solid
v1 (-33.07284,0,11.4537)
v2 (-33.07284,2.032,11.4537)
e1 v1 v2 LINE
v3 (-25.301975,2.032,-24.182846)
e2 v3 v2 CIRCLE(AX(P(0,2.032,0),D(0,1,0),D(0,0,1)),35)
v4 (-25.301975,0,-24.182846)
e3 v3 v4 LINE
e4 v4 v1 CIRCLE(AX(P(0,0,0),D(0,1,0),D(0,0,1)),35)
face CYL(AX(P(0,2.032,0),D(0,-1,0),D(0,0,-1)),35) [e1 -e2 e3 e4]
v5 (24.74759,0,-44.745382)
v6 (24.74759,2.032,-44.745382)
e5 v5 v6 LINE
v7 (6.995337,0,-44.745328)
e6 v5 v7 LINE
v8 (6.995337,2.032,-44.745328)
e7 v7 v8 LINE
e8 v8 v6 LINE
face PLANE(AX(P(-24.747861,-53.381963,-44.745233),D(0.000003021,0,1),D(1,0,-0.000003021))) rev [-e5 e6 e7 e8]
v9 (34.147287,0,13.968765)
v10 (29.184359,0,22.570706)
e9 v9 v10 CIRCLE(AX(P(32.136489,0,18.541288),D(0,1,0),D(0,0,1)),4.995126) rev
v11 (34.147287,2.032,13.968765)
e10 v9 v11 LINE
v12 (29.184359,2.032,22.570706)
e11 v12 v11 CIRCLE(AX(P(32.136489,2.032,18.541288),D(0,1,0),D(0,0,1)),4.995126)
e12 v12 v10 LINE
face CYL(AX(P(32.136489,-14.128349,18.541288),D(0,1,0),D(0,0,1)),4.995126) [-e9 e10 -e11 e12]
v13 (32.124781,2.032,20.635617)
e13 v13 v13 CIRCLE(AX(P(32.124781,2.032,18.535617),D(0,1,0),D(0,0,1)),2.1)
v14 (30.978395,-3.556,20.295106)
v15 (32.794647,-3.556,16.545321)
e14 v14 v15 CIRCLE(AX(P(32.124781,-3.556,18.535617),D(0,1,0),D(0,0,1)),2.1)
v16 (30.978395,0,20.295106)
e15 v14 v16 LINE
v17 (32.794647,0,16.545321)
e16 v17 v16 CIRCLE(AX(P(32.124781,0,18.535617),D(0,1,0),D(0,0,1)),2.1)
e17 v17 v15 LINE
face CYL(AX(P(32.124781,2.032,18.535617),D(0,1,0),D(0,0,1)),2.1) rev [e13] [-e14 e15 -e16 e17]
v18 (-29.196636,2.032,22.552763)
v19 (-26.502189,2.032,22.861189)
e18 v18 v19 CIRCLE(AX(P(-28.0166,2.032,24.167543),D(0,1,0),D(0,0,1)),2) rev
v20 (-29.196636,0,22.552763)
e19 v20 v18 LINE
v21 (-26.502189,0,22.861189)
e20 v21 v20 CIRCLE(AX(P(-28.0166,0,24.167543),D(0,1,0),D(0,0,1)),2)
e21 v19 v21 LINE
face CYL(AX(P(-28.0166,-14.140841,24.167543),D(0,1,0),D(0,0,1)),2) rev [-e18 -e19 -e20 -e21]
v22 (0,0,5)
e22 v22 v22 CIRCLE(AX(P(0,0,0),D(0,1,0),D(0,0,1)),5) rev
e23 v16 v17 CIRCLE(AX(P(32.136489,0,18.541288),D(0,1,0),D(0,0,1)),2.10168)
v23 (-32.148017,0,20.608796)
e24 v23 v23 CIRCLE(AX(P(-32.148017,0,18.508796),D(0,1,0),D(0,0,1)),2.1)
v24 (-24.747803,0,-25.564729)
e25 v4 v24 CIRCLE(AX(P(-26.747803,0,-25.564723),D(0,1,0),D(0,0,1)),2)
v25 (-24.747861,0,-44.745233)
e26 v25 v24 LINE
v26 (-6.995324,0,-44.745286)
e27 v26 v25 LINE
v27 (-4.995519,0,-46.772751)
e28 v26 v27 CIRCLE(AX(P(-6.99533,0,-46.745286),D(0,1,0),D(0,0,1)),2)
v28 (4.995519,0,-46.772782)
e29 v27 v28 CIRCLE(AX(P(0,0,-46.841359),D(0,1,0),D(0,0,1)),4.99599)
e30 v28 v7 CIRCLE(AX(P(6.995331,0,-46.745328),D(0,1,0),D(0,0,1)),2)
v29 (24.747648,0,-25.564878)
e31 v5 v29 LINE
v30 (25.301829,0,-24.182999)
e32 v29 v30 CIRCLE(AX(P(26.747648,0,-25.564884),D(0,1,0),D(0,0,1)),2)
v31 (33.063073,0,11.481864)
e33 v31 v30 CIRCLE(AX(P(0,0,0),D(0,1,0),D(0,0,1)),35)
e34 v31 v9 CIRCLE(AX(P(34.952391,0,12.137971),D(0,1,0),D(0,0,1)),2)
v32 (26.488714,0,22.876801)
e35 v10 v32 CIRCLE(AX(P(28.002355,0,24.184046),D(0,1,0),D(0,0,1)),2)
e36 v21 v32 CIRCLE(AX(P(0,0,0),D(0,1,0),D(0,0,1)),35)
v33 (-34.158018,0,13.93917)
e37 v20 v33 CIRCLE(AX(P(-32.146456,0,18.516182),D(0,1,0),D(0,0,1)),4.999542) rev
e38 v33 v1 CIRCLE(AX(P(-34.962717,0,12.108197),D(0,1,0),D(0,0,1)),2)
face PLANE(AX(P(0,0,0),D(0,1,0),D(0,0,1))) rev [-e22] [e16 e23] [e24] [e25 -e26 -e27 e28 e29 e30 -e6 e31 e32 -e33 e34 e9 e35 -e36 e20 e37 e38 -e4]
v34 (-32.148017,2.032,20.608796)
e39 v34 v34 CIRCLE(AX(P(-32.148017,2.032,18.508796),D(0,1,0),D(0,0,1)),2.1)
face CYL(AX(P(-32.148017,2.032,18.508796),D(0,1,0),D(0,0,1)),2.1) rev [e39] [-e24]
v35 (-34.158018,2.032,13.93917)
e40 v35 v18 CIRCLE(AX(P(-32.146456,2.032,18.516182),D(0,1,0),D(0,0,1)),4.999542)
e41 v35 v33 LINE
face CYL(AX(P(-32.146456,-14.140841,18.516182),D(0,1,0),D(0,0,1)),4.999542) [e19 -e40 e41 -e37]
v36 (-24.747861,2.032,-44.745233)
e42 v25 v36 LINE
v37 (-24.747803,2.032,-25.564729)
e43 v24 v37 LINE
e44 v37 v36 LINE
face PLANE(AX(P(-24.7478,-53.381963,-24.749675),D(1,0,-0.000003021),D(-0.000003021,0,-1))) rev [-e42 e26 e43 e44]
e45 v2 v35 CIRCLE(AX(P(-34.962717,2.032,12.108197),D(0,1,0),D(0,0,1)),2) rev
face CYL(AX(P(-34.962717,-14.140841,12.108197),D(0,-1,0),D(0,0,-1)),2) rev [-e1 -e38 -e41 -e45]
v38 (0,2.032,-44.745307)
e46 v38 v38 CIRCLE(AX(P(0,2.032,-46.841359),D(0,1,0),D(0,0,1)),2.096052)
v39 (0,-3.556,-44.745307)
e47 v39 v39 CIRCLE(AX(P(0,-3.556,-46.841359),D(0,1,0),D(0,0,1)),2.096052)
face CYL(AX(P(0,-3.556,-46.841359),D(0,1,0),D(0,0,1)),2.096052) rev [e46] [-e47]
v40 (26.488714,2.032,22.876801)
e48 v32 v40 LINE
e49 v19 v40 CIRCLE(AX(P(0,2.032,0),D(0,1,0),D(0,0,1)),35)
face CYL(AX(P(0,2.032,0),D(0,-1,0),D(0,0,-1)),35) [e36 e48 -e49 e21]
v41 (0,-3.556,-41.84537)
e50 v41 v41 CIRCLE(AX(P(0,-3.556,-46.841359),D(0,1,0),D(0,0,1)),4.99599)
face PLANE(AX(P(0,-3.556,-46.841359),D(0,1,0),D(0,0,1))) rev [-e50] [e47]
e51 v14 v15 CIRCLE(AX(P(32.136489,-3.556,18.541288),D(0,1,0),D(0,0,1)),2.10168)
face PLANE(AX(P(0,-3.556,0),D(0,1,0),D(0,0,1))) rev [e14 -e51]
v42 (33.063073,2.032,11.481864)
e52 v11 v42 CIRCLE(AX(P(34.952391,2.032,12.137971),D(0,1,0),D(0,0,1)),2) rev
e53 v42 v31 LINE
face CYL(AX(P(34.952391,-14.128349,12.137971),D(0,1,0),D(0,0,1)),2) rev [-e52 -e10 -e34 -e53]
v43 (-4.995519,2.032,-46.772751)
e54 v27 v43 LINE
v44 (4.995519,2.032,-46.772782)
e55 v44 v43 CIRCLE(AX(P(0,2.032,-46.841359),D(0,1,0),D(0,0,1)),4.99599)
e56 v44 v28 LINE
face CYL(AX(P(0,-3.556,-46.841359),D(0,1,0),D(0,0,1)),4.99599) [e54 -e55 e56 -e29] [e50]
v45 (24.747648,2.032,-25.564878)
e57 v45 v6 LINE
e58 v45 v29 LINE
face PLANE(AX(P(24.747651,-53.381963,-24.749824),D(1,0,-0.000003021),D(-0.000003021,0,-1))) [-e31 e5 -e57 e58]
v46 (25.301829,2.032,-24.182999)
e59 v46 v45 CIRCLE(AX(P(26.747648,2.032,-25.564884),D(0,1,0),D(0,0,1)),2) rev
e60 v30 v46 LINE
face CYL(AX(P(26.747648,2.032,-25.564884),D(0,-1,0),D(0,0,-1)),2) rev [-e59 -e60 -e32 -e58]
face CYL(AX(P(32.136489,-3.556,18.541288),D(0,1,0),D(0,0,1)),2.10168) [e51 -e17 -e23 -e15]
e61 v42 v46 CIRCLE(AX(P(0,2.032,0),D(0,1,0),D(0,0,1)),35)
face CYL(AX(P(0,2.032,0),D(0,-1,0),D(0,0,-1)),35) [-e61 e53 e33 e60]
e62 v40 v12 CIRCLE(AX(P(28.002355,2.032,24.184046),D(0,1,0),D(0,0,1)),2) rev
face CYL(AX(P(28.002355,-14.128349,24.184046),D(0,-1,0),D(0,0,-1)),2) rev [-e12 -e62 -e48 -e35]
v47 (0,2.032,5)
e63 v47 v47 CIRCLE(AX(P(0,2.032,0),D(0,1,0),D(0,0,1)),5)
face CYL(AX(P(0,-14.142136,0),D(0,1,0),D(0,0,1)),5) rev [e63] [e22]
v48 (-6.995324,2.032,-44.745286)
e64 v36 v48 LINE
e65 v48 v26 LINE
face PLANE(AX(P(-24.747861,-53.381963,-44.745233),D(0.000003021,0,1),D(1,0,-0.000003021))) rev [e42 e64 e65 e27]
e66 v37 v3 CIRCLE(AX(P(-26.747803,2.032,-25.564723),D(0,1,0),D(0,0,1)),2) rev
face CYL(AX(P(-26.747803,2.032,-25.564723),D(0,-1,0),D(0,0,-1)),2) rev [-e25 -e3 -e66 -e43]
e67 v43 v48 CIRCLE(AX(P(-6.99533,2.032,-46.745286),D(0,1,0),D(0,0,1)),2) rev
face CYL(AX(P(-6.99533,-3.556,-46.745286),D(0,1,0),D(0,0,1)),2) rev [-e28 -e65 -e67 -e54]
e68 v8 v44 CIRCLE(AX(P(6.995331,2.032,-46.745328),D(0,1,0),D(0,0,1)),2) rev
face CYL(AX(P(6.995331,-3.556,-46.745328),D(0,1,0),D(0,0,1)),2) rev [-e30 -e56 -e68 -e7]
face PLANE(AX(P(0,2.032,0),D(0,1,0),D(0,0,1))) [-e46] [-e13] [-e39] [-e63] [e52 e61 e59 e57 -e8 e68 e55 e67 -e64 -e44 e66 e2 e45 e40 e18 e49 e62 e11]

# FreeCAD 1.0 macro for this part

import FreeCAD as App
import Part
import Sketcher

V = App.Vector
Q = App.Units.Quantity


def edges_at(feature, points):
    """Names of the edges that pass closest to the given points."""
    edges = feature.Shape.Edges
    near = lambda p: min(range(len(edges)), key=lambda i: edges[i].distToShape(Part.Vertex(*p))[0])
    return sorted({f"Edge{near(p) + 1}" for p in points})

doc = App.newDocument("Part")
body = doc.addObject("PartDesign::Body", "Body")

# Sketch on XZ plane
sketch1 = doc.addObject("Sketcher::SketchObject", "Sketch")
body.addObject(sketch1)
sketch1.AttachmentSupport = (doc.XZ_Plane, [""])
sketch1.MapMode = "FlatFace"
sketch1.addGeometry(Part.Circle(V(0, 0, 0), V(0, 0, 1), 35), False)
sketch1.addConstraint([
    Sketcher.Constraint("Coincident", 0, 3, -1, 1),
    Sketcher.Constraint("Diameter", 0, Q("70 mm")),
])
pad1 = doc.addObject("PartDesign::Pad", "Pad")
body.addObject(pad1)
pad1.Profile = sketch1
pad1.Length = 2.032
pad1.Reversed = True

# Sketch on XZ plane
sketch2 = doc.addObject("Sketcher::SketchObject", "Sketch001")
body.addObject(sketch2)
sketch2.AttachmentSupport = (doc.XZ_Plane, [""])
sketch2.MapMode = "FlatFace"
sketch2.AttachmentOffset = App.Placement(V(0, 0, -2.032), App.Rotation())
sketch2.addGeometry([
    Part.LineSegment(V(-24.7478, -24.749675, 0), V(24.747651, -24.749824, 0)),
    Part.LineSegment(V(24.747651, -24.749824, 0), V(24.74759, -44.745382, 0)),
    Part.LineSegment(V(24.74759, -44.745382, 0), V(-24.747861, -44.745233, 0)),
    Part.LineSegment(V(-24.747861, -44.745233, 0), V(-24.7478, -24.749675, 0)),
], False)
sketch2.addConstraint([
    Sketcher.Constraint("Coincident", 0, 2, 1, 1),
    Sketcher.Constraint("Coincident", 1, 2, 2, 1),
    Sketcher.Constraint("Coincident", 2, 2, 3, 1),
    Sketcher.Constraint("Coincident", 3, 2, 0, 1),
    Sketcher.Constraint("Perpendicular", 0, 1),
    Sketcher.Constraint("Perpendicular", 1, 2),
    Sketcher.Constraint("Perpendicular", 2, 3),
    Sketcher.Constraint("DistanceX", 3, 2, -1, 1, Q("24.7478 mm")),
    Sketcher.Constraint("Distance", 0, Q("49.495451 mm")),
    Sketcher.Constraint("Distance", 1, Q("19.995558 mm")),
    Sketcher.Constraint("DistanceX", -1, 1, 1, 2, Q("24.74759 mm")),
    Sketcher.Constraint("DistanceY", 0, 2, -1, 1, Q("24.749824 mm")),
])
pad2 = doc.addObject("PartDesign::Pad", "Pad001")
body.addObject(pad2)
pad2.Profile = sketch2
pad2.Length = 2.032

# Sketch on XZ plane
sketch3 = doc.addObject("Sketcher::SketchObject", "Sketch002")
body.addObject(sketch3)
sketch3.AttachmentSupport = (doc.XZ_Plane, [""])
sketch3.MapMode = "FlatFace"
sketch3.AttachmentOffset = App.Placement(V(0, 0, -2.032), App.Rotation())
sketch3.addGeometry([
    Part.Circle(V(0, -46.841359, 0), V(0, 0, 1), 4.99599),
    Part.Circle(V(0, -46.841359, 0), V(0, 0, 1), 2.096052),
], False)
sketch3.addConstraint([
    Sketcher.Constraint("Coincident", 1, 3, 0, 3),
    Sketcher.Constraint("PointOnObject", 0, 3, -2),
    Sketcher.Constraint("Diameter", 0, Q("9.991979 mm")),
    Sketcher.Constraint("Diameter", 1, Q("4.192104 mm")),
    Sketcher.Constraint("DistanceY", 0, 3, -1, 1, Q("46.841359 mm")),
])
pad3 = doc.addObject("PartDesign::Pad", "Pad002")
body.addObject(pad3)
pad3.Profile = sketch3
pad3.Length = 5.588

# Sketch on XZ plane
sketch4 = doc.addObject("Sketcher::SketchObject", "Sketch003")
body.addObject(sketch4)
sketch4.AttachmentSupport = (doc.XZ_Plane, [""])
sketch4.MapMode = "FlatFace"
sketch4.AttachmentOffset = App.Placement(V(0, 0, -2.032), App.Rotation())
sketch4.addGeometry(Part.Circle(V(32.136489, 18.541288, 0), V(0, 0, 1), 4.995126), False)
sketch4.addConstraint([
    Sketcher.Constraint("Diameter", 0, Q("9.990251 mm")),
    Sketcher.Constraint("DistanceX", -1, 1, 0, 3, Q("32.136489 mm")),
    Sketcher.Constraint("DistanceY", -1, 1, 0, 3, Q("18.541288 mm")),
])
pad4 = doc.addObject("PartDesign::Pad", "Pad003")
body.addObject(pad4)
pad4.Profile = sketch4
pad4.Length = 2.032

# Sketch on XZ plane
sketch5 = doc.addObject("Sketcher::SketchObject", "Sketch004")
body.addObject(sketch5)
sketch5.AttachmentSupport = (doc.XZ_Plane, [""])
sketch5.MapMode = "FlatFace"
sketch5.AttachmentOffset = App.Placement(V(0, 0, -2.032), App.Rotation())
sketch5.addGeometry(Part.Circle(V(32.136489, 18.541288, 0), V(0, 0, 1), 2.10168), False)
sketch5.addConstraint([
    Sketcher.Constraint("Diameter", 0, Q("4.203359 mm")),
    Sketcher.Constraint("DistanceX", -1, 1, 0, 3, Q("32.136489 mm")),
    Sketcher.Constraint("DistanceY", -1, 1, 0, 3, Q("18.541288 mm")),
])
pad5 = doc.addObject("PartDesign::Pad", "Pad004")
body.addObject(pad5)
pad5.Profile = sketch5
pad5.Length = 5.588

# Sketch on XZ plane
sketch6 = doc.addObject("Sketcher::SketchObject", "Sketch005")
body.addObject(sketch6)
sketch6.AttachmentSupport = (doc.XZ_Plane, [""])
sketch6.MapMode = "FlatFace"
sketch6.AttachmentOffset = App.Placement(V(0, 0, -2.032), App.Rotation())
sketch6.addGeometry(Part.Circle(V(32.124781, 18.535617, 0), V(0, 0, 1), 2.1), False)
sketch6.addConstraint([
    Sketcher.Constraint("Diameter", 0, Q("4.2 mm")),
    Sketcher.Constraint("DistanceX", -1, 1, 0, 3, Q("32.124781 mm")),
    Sketcher.Constraint("DistanceY", -1, 1, 0, 3, Q("18.535617 mm")),
])
doc.recompute()
hole = doc.addObject("PartDesign::Hole", "Hole")
body.addObject(hole)
hole.Profile = sketch6
hole.ThreadType = "None"
hole.Diameter = 4.2
hole.DepthType = "ThroughAll"
hole.Reversed = True

# Sketch on XZ plane
sketch7 = doc.addObject("Sketcher::SketchObject", "Sketch006")
body.addObject(sketch7)
sketch7.AttachmentSupport = (doc.XZ_Plane, [""])
sketch7.MapMode = "FlatFace"
sketch7.AttachmentOffset = App.Placement(V(0, 0, -2.032), App.Rotation())
sketch7.addGeometry(Part.Circle(V(-32.146456, 18.516182, 0), V(0, 0, 1), 4.999542), False)
sketch7.addConstraint([
    Sketcher.Constraint("Diameter", 0, Q("9.999085 mm")),
    Sketcher.Constraint("DistanceY", -1, 1, 0, 3, Q("18.516182 mm")),
    Sketcher.Constraint("DistanceX", 0, 3, -1, 1, Q("32.146456 mm")),
])
pad6 = doc.addObject("PartDesign::Pad", "Pad005")
body.addObject(pad6)
pad6.Profile = sketch7
pad6.Length = 2.032

# Sketch on XZ plane
sketch8 = doc.addObject("Sketcher::SketchObject", "Sketch007")
body.addObject(sketch8)
sketch8.AttachmentSupport = (doc.XZ_Plane, [""])
sketch8.MapMode = "FlatFace"
sketch8.AttachmentOffset = App.Placement(V(0, 0, -2.032), App.Rotation())
sketch8.addGeometry(Part.Circle(V(-32.148017, 18.508796, 0), V(0, 0, 1), 2.1), False)
sketch8.addConstraint([
    Sketcher.Constraint("Diameter", 0, Q("4.2 mm")),
    Sketcher.Constraint("DistanceX", 0, 3, -1, 1, Q("32.148017 mm")),
    Sketcher.Constraint("DistanceY", -1, 1, 0, 3, Q("18.508796 mm")),
])
doc.recompute()
hole2 = doc.addObject("PartDesign::Hole", "Hole001")
body.addObject(hole2)
hole2.Profile = sketch8
hole2.ThreadType = "None"
hole2.Diameter = 4.2
hole2.DepthType = "ThroughAll"
hole2.Reversed = True
doc.recompute()

fillet = doc.addObject("PartDesign::Fillet", "Fillet")
body.addObject(fillet)
fillet.Base = (hole2, edges_at(hole2, [(-24.748, 1.016, -24.75)]))
fillet.Radius = 2
doc.recompute()

fillet2 = doc.addObject("PartDesign::Fillet", "Fillet001")
body.addObject(fillet2)
fillet2.Base = (fillet, edges_at(fillet, [(-32.284, 1.016, 13.519)]))
fillet2.Radius = 2
doc.recompute()

fillet3 = doc.addObject("PartDesign::Fillet", "Fillet002")
body.addObject(fillet3)
fillet3.Base = (fillet2, edges_at(fillet2, [(-27.892, 1.016, 21.143)]))
fillet3.Radius = 2
doc.recompute()

fillet4 = doc.addObject("PartDesign::Fillet", "Fillet003")
body.addObject(fillet4)
fillet4.Base = (fillet3, edges_at(fillet3, [(27.881, 1.016, 21.157)]))
fillet4.Radius = 2
doc.recompute()

fillet5 = doc.addObject("PartDesign::Fillet", "Fillet004")
body.addObject(fillet5)
fillet5.Base = (fillet4, edges_at(fillet4, [(32.272, 1.016, 13.548)]))
fillet5.Radius = 2
doc.recompute()

fillet6 = doc.addObject("PartDesign::Fillet", "Fillet005")
body.addObject(fillet6)
fillet6.Base = (fillet5, edges_at(fillet5, [(24.748, 1.016, -24.75)]))
fillet6.Radius = 2
doc.recompute()

fillet7 = doc.addObject("PartDesign::Fillet", "Fillet006")
body.addObject(fillet7)
fillet7.Base = (fillet6, edges_at(fillet6, [(4.535, 1.016, -44.745)]))
fillet7.Radius = 2
doc.recompute()

fillet8 = doc.addObject("PartDesign::Fillet", "Fillet007")
body.addObject(fillet8)
fillet8.Base = (fillet7, edges_at(fillet7, [(-4.535, 1.016, -44.745)]))
fillet8.Radius = 2

# Sketch on XZ plane
sketch9 = doc.addObject("Sketcher::SketchObject", "Sketch008")
body.addObject(sketch9)
sketch9.AttachmentSupport = (doc.XZ_Plane, [""])
sketch9.MapMode = "FlatFace"
sketch9.AttachmentOffset = App.Placement(V(0, 0, -2.032), App.Rotation())
sketch9.addGeometry(Part.Circle(V(0, 0, 0), V(0, 0, 1), 5), False)
sketch9.addConstraint([
    Sketcher.Constraint("Coincident", 0, 3, -1, 1),
    Sketcher.Constraint("Diameter", 0, Q("10 mm")),
])
pocket1 = doc.addObject("PartDesign::Pocket", "Pocket")
body.addObject(pocket1)
pocket1.Profile = sketch9
pocket1.Length = 2.032
pocket1.Reversed = True

doc.recompute()
